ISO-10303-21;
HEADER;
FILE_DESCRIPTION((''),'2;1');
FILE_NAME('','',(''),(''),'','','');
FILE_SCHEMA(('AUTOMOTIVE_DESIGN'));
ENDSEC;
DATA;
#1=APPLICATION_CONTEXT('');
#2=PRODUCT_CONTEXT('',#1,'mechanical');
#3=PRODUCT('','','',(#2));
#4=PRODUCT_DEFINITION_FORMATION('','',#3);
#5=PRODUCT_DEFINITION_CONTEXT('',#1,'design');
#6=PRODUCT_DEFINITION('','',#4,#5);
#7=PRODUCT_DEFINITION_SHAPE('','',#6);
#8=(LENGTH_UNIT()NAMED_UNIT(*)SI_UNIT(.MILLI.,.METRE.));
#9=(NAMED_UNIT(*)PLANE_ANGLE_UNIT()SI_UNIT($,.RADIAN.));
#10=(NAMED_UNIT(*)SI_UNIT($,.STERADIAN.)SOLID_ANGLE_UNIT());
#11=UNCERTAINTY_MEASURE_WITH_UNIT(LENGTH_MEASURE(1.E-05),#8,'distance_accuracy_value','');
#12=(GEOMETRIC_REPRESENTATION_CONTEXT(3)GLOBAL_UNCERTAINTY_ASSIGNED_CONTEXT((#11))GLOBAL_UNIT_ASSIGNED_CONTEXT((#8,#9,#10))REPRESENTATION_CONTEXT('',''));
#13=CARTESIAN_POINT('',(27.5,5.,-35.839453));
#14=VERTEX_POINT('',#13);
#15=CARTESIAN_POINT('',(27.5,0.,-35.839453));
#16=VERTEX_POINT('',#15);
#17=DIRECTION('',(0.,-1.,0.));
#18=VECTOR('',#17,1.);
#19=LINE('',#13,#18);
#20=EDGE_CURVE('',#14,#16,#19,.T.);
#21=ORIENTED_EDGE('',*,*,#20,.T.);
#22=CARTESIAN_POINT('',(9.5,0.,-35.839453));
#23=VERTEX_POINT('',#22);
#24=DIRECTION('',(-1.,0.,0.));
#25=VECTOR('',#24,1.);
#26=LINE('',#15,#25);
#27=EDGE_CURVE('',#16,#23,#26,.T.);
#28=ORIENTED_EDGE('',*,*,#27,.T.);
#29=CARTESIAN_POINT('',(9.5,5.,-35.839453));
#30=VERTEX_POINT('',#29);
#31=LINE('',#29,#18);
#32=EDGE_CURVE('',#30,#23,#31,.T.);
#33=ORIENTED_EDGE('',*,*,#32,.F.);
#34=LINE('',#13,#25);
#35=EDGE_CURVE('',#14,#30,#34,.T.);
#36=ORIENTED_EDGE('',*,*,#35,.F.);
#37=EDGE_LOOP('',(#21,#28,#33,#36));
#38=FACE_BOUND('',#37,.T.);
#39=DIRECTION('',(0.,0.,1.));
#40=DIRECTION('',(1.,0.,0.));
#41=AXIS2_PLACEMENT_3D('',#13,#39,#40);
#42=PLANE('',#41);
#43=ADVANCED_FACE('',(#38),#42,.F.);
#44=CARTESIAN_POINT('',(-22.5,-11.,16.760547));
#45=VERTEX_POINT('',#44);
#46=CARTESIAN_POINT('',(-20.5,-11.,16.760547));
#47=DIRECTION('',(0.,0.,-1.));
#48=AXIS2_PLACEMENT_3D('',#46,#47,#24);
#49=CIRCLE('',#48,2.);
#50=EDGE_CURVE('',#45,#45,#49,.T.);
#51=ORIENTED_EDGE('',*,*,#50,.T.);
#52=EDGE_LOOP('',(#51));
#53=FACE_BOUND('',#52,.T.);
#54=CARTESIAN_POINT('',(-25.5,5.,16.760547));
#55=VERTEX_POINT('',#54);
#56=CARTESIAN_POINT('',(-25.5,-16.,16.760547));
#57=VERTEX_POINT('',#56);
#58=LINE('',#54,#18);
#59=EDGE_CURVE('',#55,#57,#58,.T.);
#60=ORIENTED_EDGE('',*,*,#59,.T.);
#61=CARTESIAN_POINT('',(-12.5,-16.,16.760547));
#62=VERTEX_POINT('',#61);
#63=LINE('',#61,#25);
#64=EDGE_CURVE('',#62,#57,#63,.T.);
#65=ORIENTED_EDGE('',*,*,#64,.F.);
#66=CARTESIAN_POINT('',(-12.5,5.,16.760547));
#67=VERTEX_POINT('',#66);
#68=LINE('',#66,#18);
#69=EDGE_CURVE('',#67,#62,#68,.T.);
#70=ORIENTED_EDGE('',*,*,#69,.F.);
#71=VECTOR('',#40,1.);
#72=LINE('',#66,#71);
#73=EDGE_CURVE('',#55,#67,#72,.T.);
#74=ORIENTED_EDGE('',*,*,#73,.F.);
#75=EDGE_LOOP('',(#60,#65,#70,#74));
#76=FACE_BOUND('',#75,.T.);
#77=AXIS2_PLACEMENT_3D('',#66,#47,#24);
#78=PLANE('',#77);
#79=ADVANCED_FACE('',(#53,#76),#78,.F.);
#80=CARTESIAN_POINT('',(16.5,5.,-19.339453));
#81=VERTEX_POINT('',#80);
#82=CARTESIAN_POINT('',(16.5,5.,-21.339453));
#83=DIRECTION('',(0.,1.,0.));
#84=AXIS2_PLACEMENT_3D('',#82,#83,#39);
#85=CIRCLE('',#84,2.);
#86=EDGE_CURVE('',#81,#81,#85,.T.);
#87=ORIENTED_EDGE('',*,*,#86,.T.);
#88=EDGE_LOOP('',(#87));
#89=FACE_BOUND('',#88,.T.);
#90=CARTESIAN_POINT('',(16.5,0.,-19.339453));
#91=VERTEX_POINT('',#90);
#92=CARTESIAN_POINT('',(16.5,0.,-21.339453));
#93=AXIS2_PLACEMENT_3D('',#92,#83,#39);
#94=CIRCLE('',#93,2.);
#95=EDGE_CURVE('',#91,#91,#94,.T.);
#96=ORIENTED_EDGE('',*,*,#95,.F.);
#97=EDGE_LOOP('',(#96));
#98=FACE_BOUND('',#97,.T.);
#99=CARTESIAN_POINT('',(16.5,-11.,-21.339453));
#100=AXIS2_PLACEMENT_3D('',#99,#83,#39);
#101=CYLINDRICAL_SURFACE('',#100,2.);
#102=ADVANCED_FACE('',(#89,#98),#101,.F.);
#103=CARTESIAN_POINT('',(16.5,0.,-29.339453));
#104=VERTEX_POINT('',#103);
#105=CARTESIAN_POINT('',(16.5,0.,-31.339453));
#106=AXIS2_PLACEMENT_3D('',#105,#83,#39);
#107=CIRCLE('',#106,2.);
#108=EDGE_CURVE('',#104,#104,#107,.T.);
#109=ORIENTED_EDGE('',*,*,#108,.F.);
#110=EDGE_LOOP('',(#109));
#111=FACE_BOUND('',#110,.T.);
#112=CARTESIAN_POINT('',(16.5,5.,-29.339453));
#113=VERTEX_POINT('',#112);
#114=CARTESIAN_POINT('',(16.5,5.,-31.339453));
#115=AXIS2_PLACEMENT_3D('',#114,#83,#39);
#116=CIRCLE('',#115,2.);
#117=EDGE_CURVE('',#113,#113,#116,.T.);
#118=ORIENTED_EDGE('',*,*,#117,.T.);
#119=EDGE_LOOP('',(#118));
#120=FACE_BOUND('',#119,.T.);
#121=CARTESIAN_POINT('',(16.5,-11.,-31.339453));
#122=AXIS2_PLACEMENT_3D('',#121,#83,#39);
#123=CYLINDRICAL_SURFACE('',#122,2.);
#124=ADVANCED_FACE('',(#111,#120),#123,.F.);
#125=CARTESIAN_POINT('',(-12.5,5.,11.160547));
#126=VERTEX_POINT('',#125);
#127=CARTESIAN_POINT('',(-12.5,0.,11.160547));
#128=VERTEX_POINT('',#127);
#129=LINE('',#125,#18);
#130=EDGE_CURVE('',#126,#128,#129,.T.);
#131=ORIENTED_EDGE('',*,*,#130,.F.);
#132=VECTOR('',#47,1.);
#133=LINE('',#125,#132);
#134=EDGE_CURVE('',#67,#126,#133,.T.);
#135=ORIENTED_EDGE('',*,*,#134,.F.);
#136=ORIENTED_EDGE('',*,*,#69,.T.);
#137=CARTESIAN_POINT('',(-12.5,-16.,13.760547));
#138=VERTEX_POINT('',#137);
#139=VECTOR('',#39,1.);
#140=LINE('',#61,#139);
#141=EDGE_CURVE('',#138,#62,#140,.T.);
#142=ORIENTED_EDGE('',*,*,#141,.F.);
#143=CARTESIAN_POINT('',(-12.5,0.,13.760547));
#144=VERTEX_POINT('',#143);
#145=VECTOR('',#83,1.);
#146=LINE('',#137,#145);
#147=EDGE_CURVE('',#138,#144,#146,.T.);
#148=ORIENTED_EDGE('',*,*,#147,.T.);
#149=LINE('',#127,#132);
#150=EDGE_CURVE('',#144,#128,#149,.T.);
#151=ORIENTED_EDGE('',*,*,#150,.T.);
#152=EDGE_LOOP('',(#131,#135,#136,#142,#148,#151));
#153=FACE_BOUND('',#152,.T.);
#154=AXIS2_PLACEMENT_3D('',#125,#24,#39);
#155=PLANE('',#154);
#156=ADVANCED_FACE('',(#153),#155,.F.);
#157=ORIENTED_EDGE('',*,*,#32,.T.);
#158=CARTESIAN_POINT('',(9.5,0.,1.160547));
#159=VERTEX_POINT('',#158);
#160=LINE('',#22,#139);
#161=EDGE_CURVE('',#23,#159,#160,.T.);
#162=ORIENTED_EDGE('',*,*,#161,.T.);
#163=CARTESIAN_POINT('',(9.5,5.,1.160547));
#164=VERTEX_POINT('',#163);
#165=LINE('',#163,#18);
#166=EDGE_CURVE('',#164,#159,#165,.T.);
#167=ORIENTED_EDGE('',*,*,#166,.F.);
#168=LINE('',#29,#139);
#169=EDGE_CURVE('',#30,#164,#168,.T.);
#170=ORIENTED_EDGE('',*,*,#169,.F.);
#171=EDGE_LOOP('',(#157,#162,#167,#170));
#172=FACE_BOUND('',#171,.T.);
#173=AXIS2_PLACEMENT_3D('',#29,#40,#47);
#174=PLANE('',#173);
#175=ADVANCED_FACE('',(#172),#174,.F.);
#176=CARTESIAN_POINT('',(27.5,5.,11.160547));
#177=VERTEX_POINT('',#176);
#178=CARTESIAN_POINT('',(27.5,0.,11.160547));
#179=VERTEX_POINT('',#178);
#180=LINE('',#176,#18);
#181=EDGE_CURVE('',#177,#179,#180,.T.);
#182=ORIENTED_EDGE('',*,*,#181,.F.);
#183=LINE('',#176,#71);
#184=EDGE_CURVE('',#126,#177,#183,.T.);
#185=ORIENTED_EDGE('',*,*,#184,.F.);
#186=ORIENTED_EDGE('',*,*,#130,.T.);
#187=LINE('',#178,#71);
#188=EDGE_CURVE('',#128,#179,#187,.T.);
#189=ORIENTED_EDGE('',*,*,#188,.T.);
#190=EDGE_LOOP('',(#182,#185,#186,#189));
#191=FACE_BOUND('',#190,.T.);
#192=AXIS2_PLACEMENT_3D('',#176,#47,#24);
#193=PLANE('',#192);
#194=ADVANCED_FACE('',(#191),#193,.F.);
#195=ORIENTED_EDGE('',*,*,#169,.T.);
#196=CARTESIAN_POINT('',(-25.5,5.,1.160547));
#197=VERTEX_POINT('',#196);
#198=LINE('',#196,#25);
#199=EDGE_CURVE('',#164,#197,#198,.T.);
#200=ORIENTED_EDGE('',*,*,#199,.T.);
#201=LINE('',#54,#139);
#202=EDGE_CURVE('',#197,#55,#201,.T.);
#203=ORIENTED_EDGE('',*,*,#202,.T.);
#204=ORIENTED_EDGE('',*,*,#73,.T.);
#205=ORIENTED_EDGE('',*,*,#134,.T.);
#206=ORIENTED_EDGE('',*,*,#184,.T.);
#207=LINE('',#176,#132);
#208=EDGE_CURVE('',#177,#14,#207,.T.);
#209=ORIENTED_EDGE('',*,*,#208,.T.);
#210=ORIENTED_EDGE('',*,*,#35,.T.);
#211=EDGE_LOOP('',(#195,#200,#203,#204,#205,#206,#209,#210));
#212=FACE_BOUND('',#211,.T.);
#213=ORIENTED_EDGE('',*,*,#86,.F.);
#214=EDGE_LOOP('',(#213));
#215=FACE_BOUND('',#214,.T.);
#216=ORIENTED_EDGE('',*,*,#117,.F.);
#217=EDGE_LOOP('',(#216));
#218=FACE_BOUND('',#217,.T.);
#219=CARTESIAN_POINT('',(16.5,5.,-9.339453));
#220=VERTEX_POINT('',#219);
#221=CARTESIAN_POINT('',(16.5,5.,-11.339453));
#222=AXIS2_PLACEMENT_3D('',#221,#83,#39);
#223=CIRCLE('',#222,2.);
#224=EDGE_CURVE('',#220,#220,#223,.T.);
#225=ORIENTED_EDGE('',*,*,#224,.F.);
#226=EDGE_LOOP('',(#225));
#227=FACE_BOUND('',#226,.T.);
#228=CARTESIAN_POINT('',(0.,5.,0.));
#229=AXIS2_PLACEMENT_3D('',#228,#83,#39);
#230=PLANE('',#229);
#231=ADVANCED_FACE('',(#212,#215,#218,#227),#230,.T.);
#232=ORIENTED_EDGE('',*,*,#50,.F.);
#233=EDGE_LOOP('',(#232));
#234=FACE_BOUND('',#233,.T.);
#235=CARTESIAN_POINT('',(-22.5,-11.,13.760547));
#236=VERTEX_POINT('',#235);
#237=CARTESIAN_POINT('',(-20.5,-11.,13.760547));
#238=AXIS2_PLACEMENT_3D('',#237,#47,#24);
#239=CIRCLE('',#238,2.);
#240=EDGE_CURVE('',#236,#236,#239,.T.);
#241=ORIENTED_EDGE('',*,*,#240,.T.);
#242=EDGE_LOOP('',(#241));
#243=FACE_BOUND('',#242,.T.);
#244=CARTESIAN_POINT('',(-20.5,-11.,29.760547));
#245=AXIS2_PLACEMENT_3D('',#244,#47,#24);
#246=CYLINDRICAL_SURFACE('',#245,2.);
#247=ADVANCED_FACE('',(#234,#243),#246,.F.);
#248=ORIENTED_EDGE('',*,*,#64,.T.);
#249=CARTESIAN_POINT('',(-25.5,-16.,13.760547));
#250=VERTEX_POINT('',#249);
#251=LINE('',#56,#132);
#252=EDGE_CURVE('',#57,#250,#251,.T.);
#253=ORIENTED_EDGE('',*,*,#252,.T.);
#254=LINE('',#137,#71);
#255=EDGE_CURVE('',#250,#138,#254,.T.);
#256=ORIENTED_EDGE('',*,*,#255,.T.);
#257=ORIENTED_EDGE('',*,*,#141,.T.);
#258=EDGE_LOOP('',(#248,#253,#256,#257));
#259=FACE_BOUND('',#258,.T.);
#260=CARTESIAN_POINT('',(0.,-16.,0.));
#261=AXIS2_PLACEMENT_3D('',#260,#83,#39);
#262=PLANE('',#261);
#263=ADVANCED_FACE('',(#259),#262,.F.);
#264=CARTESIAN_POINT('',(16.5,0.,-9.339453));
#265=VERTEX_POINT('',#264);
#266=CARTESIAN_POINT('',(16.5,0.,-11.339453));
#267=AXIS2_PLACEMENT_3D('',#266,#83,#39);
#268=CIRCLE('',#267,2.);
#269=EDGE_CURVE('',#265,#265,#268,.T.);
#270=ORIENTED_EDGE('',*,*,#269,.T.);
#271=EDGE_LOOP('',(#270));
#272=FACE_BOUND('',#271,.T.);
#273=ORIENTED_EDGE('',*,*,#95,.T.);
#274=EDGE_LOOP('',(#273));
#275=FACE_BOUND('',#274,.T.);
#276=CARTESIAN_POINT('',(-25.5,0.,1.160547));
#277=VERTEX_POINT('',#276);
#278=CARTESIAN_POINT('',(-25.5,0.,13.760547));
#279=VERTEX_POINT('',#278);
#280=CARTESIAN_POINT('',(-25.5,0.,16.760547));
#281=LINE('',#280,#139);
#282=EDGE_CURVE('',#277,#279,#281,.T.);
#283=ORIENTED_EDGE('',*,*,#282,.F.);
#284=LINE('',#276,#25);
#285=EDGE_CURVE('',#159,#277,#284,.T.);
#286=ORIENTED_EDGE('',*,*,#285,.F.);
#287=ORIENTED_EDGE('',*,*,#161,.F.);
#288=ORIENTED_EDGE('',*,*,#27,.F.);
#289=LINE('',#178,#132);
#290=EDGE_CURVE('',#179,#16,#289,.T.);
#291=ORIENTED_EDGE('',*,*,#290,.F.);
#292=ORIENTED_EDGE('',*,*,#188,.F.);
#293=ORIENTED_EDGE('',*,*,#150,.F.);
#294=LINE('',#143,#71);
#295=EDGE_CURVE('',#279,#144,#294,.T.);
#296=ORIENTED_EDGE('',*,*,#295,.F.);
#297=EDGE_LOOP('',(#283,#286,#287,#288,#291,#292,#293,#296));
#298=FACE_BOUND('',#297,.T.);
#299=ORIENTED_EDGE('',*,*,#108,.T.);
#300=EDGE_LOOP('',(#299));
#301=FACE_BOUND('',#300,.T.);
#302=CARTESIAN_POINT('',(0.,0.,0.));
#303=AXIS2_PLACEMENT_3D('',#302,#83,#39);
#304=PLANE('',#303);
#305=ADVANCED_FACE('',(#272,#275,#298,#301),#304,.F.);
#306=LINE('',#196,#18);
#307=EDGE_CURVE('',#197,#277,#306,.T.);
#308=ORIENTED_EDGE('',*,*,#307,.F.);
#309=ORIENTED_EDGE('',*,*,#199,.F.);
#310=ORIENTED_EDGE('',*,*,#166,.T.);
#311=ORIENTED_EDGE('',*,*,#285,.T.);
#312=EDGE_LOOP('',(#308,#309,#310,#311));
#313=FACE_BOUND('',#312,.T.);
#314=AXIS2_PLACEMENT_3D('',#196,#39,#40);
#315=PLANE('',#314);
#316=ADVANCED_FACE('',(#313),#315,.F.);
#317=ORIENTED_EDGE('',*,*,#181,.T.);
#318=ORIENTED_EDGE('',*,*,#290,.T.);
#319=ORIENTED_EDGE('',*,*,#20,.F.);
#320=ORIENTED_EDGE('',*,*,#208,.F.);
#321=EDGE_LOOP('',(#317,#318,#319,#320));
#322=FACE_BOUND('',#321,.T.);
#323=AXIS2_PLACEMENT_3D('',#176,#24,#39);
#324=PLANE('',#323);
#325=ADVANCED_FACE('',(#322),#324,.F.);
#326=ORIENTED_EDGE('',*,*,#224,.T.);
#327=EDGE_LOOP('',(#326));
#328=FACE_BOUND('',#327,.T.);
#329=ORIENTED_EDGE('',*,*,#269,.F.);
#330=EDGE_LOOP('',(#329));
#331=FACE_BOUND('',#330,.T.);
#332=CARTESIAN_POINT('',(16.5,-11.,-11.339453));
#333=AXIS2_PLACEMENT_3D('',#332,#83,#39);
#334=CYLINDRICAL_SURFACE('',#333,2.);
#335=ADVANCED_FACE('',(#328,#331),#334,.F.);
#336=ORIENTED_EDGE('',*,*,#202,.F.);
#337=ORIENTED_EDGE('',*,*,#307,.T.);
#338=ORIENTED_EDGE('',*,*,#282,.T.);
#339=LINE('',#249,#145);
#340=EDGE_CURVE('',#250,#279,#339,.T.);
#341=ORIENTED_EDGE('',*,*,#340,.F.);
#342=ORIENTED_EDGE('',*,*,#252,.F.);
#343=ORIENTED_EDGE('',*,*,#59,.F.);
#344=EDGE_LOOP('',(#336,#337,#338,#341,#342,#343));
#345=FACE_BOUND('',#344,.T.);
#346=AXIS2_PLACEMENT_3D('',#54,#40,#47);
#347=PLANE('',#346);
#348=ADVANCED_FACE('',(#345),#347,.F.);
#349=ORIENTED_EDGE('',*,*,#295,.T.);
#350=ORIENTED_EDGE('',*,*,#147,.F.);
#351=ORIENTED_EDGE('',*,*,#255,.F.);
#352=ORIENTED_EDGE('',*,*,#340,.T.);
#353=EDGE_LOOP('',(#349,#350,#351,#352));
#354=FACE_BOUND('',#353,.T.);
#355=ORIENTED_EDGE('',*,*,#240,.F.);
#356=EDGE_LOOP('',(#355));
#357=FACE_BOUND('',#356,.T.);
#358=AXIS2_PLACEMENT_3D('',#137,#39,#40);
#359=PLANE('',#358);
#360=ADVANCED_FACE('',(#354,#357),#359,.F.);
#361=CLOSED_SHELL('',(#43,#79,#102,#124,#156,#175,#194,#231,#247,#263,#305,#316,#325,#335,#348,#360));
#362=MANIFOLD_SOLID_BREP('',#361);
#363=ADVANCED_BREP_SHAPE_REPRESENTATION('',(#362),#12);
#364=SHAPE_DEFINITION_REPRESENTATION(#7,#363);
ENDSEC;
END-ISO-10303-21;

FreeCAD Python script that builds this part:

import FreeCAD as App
import Part
import Sketcher
from FreeCAD import Vector

doc = App.newDocument("Part")
body = doc.addObject("PartDesign::Body", "Body")

# Sketch on XZ plane
sketch1 = body.newObject("Sketcher::SketchObject", "Sketch")
sketch1.AttachmentSupport = (doc.getObject("XZ_Plane"), [""])
sketch1.MapMode = "FlatFace"
sketch1.addGeometry(Part.LineSegment(Vector(-12.5, 11.160547, 0), Vector(27.5, 11.160547, 0)), False)
sketch1.addGeometry(Part.LineSegment(Vector(27.5, 11.160547, 0), Vector(27.5, -35.839453, 0)), False)
sketch1.addGeometry(Part.LineSegment(Vector(27.5, -35.839453, 0), Vector(9.5, -35.839453, 0)), False)
sketch1.addGeometry(Part.LineSegment(Vector(9.5, -35.839453, 0), Vector(9.5, 1.160547, 0)), False)
sketch1.addGeometry(Part.LineSegment(Vector(9.5, 1.160547, 0), Vector(-25.5, 1.160547, 0)), False)
sketch1.addGeometry(Part.LineSegment(Vector(-25.5, 1.160547, 0), Vector(-25.5, 16.760547, 0)), False)
sketch1.addGeometry(Part.LineSegment(Vector(-25.5, 16.760547, 0), Vector(-12.5, 16.760547, 0)), False)
sketch1.addGeometry(Part.LineSegment(Vector(-12.5, 16.760547, 0), Vector(-12.5, 11.160547, 0)), False)
sketch1.addConstraint(Sketcher.Constraint("Coincident", 0, 2, 1, 1))
sketch1.addConstraint(Sketcher.Constraint("Coincident", 1, 2, 2, 1))
sketch1.addConstraint(Sketcher.Constraint("Coincident", 2, 2, 3, 1))
sketch1.addConstraint(Sketcher.Constraint("Coincident", 3, 2, 4, 1))
sketch1.addConstraint(Sketcher.Constraint("Coincident", 4, 2, 5, 1))
sketch1.addConstraint(Sketcher.Constraint("Coincident", 5, 2, 6, 1))
sketch1.addConstraint(Sketcher.Constraint("Coincident", 6, 2, 7, 1))
sketch1.addConstraint(Sketcher.Constraint("Coincident", 7, 2, 0, 1))
sketch1.addConstraint(Sketcher.Constraint("Horizontal", 0))
sketch1.addConstraint(Sketcher.Constraint("Vertical", 1))
sketch1.addConstraint(Sketcher.Constraint("Horizontal", 2))
sketch1.addConstraint(Sketcher.Constraint("Vertical", 3))
sketch1.addConstraint(Sketcher.Constraint("Horizontal", 4))
sketch1.addConstraint(Sketcher.Constraint("Vertical", 5))
sketch1.addConstraint(Sketcher.Constraint("Horizontal", 6))
sketch1.addConstraint(Sketcher.Constraint("Vertical", 7))
sketch1.addConstraint(Sketcher.Constraint("DistanceX", 0, 1, 0, 2, 40.0))
sketch1.addConstraint(Sketcher.Constraint("DistanceX", 2, 2, 2, 1, 18.0))
sketch1.addConstraint(Sketcher.Constraint("DistanceX", 4, 2, 4, 1, 35.0))
sketch1.addConstraint(Sketcher.Constraint("DistanceY", 1, 2, 1, 1, 47.0))
sketch1.addConstraint(Sketcher.Constraint("DistanceY", 3, 1, 3, 2, 37.0))
sketch1.addConstraint(Sketcher.Constraint("DistanceY", 5, 1, 5, 2, 15.6))
sketch1.addConstraint(Sketcher.Constraint("DistanceX", -1, 1, 0, 2, 27.5))
sketch1.addConstraint(Sketcher.Constraint("DistanceY", -1, 1, 0, 2, 11.160547))
pad1 = body.newObject("PartDesign::Pad", "Pad")
pad1.Profile = sketch1
pad1.Length = 5
pad1.Reversed = True

# Sketch on XZ plane
sketch2 = body.newObject("Sketcher::SketchObject", "Sketch001")
sketch2.AttachmentSupport = (doc.getObject("XZ_Plane"), [""])
sketch2.MapMode = "FlatFace"
sketch2.addGeometry(Part.LineSegment(Vector(-12.5, 13.760547, 0), Vector(-12.5, 16.760547, 0)), False)
sketch2.addGeometry(Part.LineSegment(Vector(-12.5, 16.760547, 0), Vector(-25.5, 16.760547, 0)), False)
sketch2.addGeometry(Part.LineSegment(Vector(-25.5, 16.760547, 0), Vector(-25.5, 13.760547, 0)), False)
sketch2.addGeometry(Part.LineSegment(Vector(-25.5, 13.760547, 0), Vector(-12.5, 13.760547, 0)), False)
sketch2.addConstraint(Sketcher.Constraint("Coincident", 0, 2, 1, 1))
sketch2.addConstraint(Sketcher.Constraint("Coincident", 1, 2, 2, 1))
sketch2.addConstraint(Sketcher.Constraint("Coincident", 2, 2, 3, 1))
sketch2.addConstraint(Sketcher.Constraint("Coincident", 3, 2, 0, 1))
sketch2.addConstraint(Sketcher.Constraint("Vertical", 0))
sketch2.addConstraint(Sketcher.Constraint("Horizontal", 1))
sketch2.addConstraint(Sketcher.Constraint("Vertical", 2))
sketch2.addConstraint(Sketcher.Constraint("Horizontal", 3))
sketch2.addConstraint(Sketcher.Constraint("DistanceX", 1, 2, 1, 1, 13.0))
sketch2.addConstraint(Sketcher.Constraint("DistanceY", 0, 1, 0, 2, 3.0))
sketch2.addConstraint(Sketcher.Constraint("DistanceX", 0, 2, -1, 1, 12.5))
sketch2.addConstraint(Sketcher.Constraint("DistanceY", -1, 1, 0, 2, 16.760547))
pad2 = body.newObject("PartDesign::Pad", "Pad001")
pad2.Profile = sketch2
pad2.Length = 16

# Sketch on XZ plane
sketch3 = body.newObject("Sketcher::SketchObject", "Sketch002")
sketch3.AttachmentSupport = (doc.getObject("XZ_Plane"), [""])
sketch3.MapMode = "FlatFace"
sketch3.AttachmentOffset = App.Placement(Vector(0, 0, -5), App.Rotation())
sketch3.addGeometry(Part.Circle(Vector(16.5, -31.339453, 0), Vector(0, 0, 1), 2), False)
sketch3.addGeometry(Part.Circle(Vector(16.5, -21.339453, 0), Vector(0, 0, 1), 2), False)
sketch3.addGeometry(Part.Circle(Vector(16.5, -11.339453, 0), Vector(0, 0, 1), 2), False)
sketch3.addConstraint(Sketcher.Constraint("Equal", 0, 1))
sketch3.addConstraint(Sketcher.Constraint("Equal", 1, 2))
sketch3.addConstraint(Sketcher.Constraint("Vertical", 0, 3, 1, 3))
sketch3.addConstraint(Sketcher.Constraint("Vertical", 1, 3, 2, 3))
sketch3.addConstraint(Sketcher.Constraint("Diameter", 0, 4.0))
sketch3.addConstraint(Sketcher.Constraint("DistanceY", 0, 3, 1, 3, 10.0))
sketch3.addConstraint(Sketcher.Constraint("DistanceY", 1, 3, 2, 3, 10.0))
sketch3.addConstraint(Sketcher.Constraint("DistanceX", -1, 1, 0, 3, 16.5))
sketch3.addConstraint(Sketcher.Constraint("DistanceY", 0, 3, -1, 1, 31.339453))
pocket1 = body.newObject("PartDesign::Pocket", "Pocket")
pocket1.Profile = sketch3
pocket1.Length = 16
pocket1.Reversed = True

# Sketch on XY plane
sketch4 = body.newObject("Sketcher::SketchObject", "Sketch003")
sketch4.AttachmentSupport = (doc.getObject("XY_Plane"), [""])
sketch4.MapMode = "FlatFace"
sketch4.AttachmentOffset = App.Placement(Vector(0, 0, 13.760547), App.Rotation())
sketch4.addGeometry(Part.Circle(Vector(-20.5, -11, 0), Vector(0, 0, 1), 2), False)
sketch4.addConstraint(Sketcher.Constraint("Diameter", 0, 4.0))
sketch4.addConstraint(Sketcher.Constraint("DistanceY", 0, 3, -1, 1, 11.0))
sketch4.addConstraint(Sketcher.Constraint("DistanceX", 0, 3, -1, 1, 20.5))
pocket2 = body.newObject("PartDesign::Pocket", "Pocket001")
pocket2.Profile = sketch4
pocket2.Length = 16
pocket2.Reversed = True

doc.recompute()
